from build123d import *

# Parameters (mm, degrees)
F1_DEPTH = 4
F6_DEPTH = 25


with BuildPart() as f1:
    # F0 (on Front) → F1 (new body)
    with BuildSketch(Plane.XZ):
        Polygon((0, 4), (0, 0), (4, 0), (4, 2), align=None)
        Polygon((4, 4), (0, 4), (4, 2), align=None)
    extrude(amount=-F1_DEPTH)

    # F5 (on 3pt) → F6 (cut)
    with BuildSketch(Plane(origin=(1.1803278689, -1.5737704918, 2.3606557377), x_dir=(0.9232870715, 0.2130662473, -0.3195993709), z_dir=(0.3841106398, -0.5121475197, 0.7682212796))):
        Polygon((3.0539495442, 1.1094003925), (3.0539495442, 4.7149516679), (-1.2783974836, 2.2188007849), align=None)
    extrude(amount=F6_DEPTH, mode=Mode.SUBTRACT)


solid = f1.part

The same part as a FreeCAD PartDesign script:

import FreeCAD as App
import Part
import Sketcher
Q = App.Units.Quantity

doc = App.newDocument("Part")
body = doc.addObject("PartDesign::Body", "Body")

# Sketch on XZ plane
sketch1 = body.newObject("Sketcher::SketchObject", "Sketch")
sketch1.AttachmentSupport = (doc.getObject("XZ_Plane"), [""])
sketch1.MapMode = "FlatFace"
sketch1.addGeometry(Part.LineSegment(App.Vector(0, 4, 0), App.Vector(0, 0, 0)), False)
sketch1.addGeometry(Part.LineSegment(App.Vector(0, 0, 0), App.Vector(4, 0, 0)), False)
sketch1.addGeometry(Part.LineSegment(App.Vector(4, 0, 0), App.Vector(4, 4, 0)), False)
sketch1.addGeometry(Part.LineSegment(App.Vector(4, 4, 0), App.Vector(0, 4, 0)), False)
sketch1.addConstraint(Sketcher.Constraint("Coincident", 0, 2, 1, 1))
sketch1.addConstraint(Sketcher.Constraint("Coincident", 1, 2, 2, 1))
sketch1.addConstraint(Sketcher.Constraint("Coincident", 2, 2, 3, 1))
sketch1.addConstraint(Sketcher.Constraint("Coincident", 3, 2, 0, 1))
sketch1.addConstraint(Sketcher.Constraint("Vertical", 0))
sketch1.addConstraint(Sketcher.Constraint("Horizontal", 1))
sketch1.addConstraint(Sketcher.Constraint("Vertical", 2))
sketch1.addConstraint(Sketcher.Constraint("Horizontal", 3))
sketch1.addConstraint(Sketcher.Constraint("Coincident", 0, 2, -1, 1))
sketch1.addConstraint(Sketcher.Constraint("Equal", 3, 0))
sketch1.addConstraint(Sketcher.Constraint("DistanceX", 1, 1, 1, 2, Q("4 mm")))
pad1 = body.newObject("PartDesign::Pad", "Pad")
pad1.Profile = sketch1
pad1.Length = 4
pad1.Reversed = True

# Sketch on an angled plane
sketch2 = body.newObject("Sketcher::SketchObject", "Sketch001")
sketch2.Placement = App.Placement(App.Vector(1.180328, -1.57377, 2.360656), App.Rotation(App.Vector(0.923287071, 0.213066247, -0.319599371), App.Vector(0, 0.832050294, 0.554700196), App.Vector(0.38411064, -0.51214752, 0.76822128), "ZXY"))
sketch2.addGeometry(Part.LineSegment(App.Vector(3.1, 1.1, 0), App.Vector(3.1, 4.7, 0)), False)
sketch2.addGeometry(Part.LineSegment(App.Vector(3.1, 4.7, 0), App.Vector(-1.3, 2.2, 0)), False)
sketch2.addGeometry(Part.LineSegment(App.Vector(-1.3, 2.2, 0), App.Vector(3.1, 1.1, 0)), False)
sketch2.addConstraint(Sketcher.Constraint("Coincident", 0, 2, 1, 1))
sketch2.addConstraint(Sketcher.Constraint("Coincident", 1, 2, 2, 1))
sketch2.addConstraint(Sketcher.Constraint("Coincident", 2, 2, 0, 1))
sketch2.addConstraint(Sketcher.Constraint("Vertical", 0))
sketch2.addConstraint(Sketcher.Constraint("Distance", 1, Q("5 mm")))
sketch2.addConstraint(Sketcher.Constraint("DistanceY", 0, 1, 0, 2, Q("3.605551 mm")))
sketch2.addConstraint(Sketcher.Constraint("DistanceY", -1, 1, 1, 2, Q("2.218801 mm")))
sketch2.addConstraint(Sketcher.Constraint("DistanceY", -1, 1, 2, 2, Q("1.1094 mm")))
sketch2.addConstraint(Sketcher.Constraint("DistanceX", -1, 1, 0, 2, Q("3.05395 mm")))
pocket1 = body.newObject("PartDesign::Pocket", "Pocket")
pocket1.Profile = sketch2
pocket1.Length = 25
pocket1.Reversed = True

doc.recompute()
